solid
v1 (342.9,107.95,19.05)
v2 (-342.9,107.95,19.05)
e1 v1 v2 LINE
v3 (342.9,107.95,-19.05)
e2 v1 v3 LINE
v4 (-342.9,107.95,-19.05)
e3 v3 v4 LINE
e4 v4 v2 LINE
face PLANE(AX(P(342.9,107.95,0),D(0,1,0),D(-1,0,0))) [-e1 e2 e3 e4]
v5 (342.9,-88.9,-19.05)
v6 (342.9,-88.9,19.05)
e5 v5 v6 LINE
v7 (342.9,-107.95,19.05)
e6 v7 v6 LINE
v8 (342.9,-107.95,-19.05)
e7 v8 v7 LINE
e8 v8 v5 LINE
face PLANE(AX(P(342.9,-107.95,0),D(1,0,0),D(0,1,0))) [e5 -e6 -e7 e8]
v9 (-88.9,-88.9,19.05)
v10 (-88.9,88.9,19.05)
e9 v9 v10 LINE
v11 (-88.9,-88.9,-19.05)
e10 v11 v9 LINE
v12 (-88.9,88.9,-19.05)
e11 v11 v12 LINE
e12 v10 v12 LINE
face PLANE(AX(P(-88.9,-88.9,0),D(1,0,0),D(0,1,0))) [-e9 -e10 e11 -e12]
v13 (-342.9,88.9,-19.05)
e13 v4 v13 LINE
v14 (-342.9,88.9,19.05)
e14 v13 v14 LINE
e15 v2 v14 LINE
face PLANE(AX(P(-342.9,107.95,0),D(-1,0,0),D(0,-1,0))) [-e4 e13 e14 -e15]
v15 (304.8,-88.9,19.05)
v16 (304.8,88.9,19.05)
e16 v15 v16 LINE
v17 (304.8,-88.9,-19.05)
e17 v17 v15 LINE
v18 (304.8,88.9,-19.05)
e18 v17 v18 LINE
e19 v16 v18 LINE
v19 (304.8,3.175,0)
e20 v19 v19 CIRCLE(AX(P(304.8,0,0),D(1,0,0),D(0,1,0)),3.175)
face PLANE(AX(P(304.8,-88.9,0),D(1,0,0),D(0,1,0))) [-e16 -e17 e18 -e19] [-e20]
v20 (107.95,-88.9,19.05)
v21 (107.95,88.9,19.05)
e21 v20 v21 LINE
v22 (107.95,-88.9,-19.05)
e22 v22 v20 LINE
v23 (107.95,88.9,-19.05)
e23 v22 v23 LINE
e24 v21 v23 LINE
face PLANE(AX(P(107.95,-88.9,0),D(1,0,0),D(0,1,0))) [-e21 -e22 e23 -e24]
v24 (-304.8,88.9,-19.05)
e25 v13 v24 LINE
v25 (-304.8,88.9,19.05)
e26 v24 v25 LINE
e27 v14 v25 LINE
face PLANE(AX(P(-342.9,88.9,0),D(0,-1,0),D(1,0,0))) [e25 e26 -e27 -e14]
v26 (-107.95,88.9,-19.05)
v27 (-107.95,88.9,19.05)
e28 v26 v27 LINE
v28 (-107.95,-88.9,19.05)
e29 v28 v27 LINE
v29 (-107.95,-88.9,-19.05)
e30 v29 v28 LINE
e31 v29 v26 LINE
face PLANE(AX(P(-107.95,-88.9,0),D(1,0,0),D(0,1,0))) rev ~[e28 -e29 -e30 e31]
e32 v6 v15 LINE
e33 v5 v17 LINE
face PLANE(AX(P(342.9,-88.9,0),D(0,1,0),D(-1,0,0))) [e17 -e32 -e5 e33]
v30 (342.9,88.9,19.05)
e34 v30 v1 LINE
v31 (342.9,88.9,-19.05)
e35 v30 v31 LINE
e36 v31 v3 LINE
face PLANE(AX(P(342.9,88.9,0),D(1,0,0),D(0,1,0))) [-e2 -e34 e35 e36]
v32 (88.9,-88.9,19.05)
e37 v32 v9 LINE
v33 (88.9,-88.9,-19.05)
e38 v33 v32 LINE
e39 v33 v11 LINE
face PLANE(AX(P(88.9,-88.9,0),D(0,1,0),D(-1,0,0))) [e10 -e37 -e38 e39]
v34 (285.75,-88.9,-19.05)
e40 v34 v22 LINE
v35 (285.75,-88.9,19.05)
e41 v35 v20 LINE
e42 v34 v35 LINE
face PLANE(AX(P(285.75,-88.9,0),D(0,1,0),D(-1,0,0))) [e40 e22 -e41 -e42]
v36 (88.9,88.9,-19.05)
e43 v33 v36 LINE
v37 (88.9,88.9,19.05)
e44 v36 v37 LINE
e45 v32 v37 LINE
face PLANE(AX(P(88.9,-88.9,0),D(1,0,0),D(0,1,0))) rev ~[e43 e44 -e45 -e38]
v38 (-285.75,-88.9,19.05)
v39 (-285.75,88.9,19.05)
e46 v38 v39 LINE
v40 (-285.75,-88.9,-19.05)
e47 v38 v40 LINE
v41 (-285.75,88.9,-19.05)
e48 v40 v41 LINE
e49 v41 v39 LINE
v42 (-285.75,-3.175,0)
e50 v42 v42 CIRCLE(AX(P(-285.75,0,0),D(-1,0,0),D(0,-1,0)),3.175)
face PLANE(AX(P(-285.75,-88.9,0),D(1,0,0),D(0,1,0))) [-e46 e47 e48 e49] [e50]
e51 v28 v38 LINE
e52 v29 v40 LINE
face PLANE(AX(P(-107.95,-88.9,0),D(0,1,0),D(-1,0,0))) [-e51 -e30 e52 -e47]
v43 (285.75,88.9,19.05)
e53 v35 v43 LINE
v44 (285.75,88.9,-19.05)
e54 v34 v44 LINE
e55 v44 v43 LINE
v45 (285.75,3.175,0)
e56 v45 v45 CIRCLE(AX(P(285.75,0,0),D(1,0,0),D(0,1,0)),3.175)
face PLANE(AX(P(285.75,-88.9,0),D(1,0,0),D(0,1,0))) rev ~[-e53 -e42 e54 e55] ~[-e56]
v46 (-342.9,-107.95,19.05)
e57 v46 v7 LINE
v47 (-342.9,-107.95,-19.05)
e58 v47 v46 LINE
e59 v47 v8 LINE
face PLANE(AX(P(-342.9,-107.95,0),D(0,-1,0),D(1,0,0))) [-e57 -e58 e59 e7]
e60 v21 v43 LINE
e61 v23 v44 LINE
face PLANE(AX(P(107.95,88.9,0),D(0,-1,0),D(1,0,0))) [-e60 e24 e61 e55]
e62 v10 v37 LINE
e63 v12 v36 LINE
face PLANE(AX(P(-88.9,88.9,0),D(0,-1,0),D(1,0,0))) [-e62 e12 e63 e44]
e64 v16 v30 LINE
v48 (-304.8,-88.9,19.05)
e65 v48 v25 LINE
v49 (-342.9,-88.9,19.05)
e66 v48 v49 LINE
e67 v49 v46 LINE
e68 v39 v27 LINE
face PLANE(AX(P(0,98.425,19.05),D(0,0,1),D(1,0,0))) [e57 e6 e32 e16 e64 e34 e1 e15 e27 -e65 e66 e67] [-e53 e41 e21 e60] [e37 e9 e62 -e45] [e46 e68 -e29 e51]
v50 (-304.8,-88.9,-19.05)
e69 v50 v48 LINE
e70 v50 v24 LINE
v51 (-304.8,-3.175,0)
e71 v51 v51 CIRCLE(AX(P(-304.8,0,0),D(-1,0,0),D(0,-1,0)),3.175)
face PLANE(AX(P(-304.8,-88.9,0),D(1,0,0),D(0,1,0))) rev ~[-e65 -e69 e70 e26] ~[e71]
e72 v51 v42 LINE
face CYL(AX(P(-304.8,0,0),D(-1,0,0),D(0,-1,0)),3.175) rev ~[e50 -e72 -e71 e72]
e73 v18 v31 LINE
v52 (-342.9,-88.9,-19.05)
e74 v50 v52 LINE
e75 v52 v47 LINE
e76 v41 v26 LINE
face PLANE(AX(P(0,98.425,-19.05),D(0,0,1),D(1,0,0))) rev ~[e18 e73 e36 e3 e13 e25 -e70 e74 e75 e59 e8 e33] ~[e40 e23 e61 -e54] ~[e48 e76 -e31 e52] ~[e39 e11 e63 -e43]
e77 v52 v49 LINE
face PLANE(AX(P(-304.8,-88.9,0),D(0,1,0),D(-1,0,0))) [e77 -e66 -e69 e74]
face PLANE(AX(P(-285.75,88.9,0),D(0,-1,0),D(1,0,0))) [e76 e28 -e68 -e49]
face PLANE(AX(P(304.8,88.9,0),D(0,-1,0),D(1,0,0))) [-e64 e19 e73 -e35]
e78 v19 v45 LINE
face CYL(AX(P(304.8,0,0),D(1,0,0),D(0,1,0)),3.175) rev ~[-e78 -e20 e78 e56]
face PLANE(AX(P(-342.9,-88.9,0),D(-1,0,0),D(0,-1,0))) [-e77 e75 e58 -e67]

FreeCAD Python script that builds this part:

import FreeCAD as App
import Part
import Sketcher
from FreeCAD import Vector
Q = App.Units.Quantity


def add_polygon(sketch, points):
    """Adds a closed chain of lines whose ends are joined by coincident constraints."""
    first, n = sketch.GeometryCount, len(points)
    for a, b in zip(points, points[1:] + points[:1]):
        sketch.addGeometry(Part.LineSegment(App.Vector(*a, 0), App.Vector(*b, 0)), False)
    for i in range(n):
        sketch.addConstraint(Sketcher.Constraint("Coincident", first + i, 2, first + (i + 1) % n, 1))

doc = App.newDocument("Part")
body = doc.addObject("PartDesign::Body", "Body")

# Sketch on XY plane
sketch1 = body.newObject("Sketcher::SketchObject", "Sketch")
sketch1.AttachmentSupport = (doc.getObject("XY_Plane"), [""])
sketch1.MapMode = "FlatFace"
add_polygon(sketch1, [(343, 108), (-343, 108), (-343, 89), (-305, 89), (-305, -89), (-343, -89), (-343, -108), (343, -108), (343, -89), (305, -89), (305, 89), (343, 89)])  # lines 0-11
add_polygon(sketch1, [(-286, -89), (-286, 89), (-108, 89), (-108, -89)])  # lines 12-15
add_polygon(sketch1, [(-89, 89), (89, 89), (89, -89), (-89, -89)])  # lines 16-19
add_polygon(sketch1, [(108, 89), (286, 89), (286, -89), (108, -89)])  # lines 20-23
sketch1.addConstraint(Sketcher.Constraint("Horizontal", 0))
sketch1.addConstraint(Sketcher.Constraint("Vertical", 1))
sketch1.addConstraint(Sketcher.Constraint("Horizontal", 2))
sketch1.addConstraint(Sketcher.Constraint("Vertical", 3))
sketch1.addConstraint(Sketcher.Constraint("Horizontal", 4))
sketch1.addConstraint(Sketcher.Constraint("Vertical", 5))
sketch1.addConstraint(Sketcher.Constraint("Horizontal", 6))
sketch1.addConstraint(Sketcher.Constraint("Vertical", 7))
sketch1.addConstraint(Sketcher.Constraint("Horizontal", 8))
sketch1.addConstraint(Sketcher.Constraint("Vertical", 9))
sketch1.addConstraint(Sketcher.Constraint("Horizontal", 10))
sketch1.addConstraint(Sketcher.Constraint("Vertical", 11))
sketch1.addConstraint(Sketcher.Constraint("Vertical", 12))
sketch1.addConstraint(Sketcher.Constraint("Horizontal", 13))
sketch1.addConstraint(Sketcher.Constraint("Vertical", 14))
sketch1.addConstraint(Sketcher.Constraint("Horizontal", 15))
sketch1.addConstraint(Sketcher.Constraint("Horizontal", 16))
sketch1.addConstraint(Sketcher.Constraint("Vertical", 17))
sketch1.addConstraint(Sketcher.Constraint("Horizontal", 18))
sketch1.addConstraint(Sketcher.Constraint("Vertical", 19))
sketch1.addConstraint(Sketcher.Constraint("Horizontal", 20))
sketch1.addConstraint(Sketcher.Constraint("Vertical", 21))
sketch1.addConstraint(Sketcher.Constraint("Horizontal", 22))
sketch1.addConstraint(Sketcher.Constraint("Vertical", 23))
sketch1.addConstraint(Sketcher.Constraint("Symmetric", 0, 2, 6, 2, -1, 1))
sketch1.addConstraint(Sketcher.Constraint("Symmetric", 2, 2, 8, 2, -1, 1))
sketch1.addConstraint(Sketcher.Constraint("Symmetric", 4, 2, 10, 2, -1, 1))
sketch1.addConstraint(Sketcher.Constraint("Symmetric", 16, 2, 18, 2, -1, 1))
sketch1.addConstraint(Sketcher.Constraint("Symmetric", 15, 2, 20, 2, -1, 1))
sketch1.addConstraint(Sketcher.Constraint("Symmetric", 13, 2, 22, 2, -1, 1))
sketch1.addConstraint(Sketcher.Constraint("Symmetric", 4, 2, 7, 2, -2))
sketch1.addConstraint(Sketcher.Constraint("Horizontal", 10, 2, 12, 2))
sketch1.addConstraint(Sketcher.Constraint("Horizontal", 8, 2, 14, 2))
sketch1.addConstraint(Sketcher.Constraint("Horizontal", 13, 2, 16, 2))
sketch1.addConstraint(Sketcher.Constraint("Equal", 15, 16))
sketch1.addConstraint(Sketcher.Constraint("Equal", 22, 3))
sketch1.addConstraint(Sketcher.Constraint("DistanceX", 0, 2, 0, 1, Q("27 in")))
sketch1.addConstraint(Sketcher.Constraint("DistanceX", 13, 1, 13, 2, Q("7 in")))
sketch1.addConstraint(Sketcher.Constraint("DistanceX", 2, 1, 2, 2, Q("1.5 in")))
sketch1.addConstraint(Sketcher.Constraint("DistanceY", 1, 2, 1, 1, Q("0.75 in")))
sketch1.addConstraint(Sketcher.Constraint("DistanceX", 12, 2, -1, 1, Q("11.25 in")))
pad1 = body.newObject("PartDesign::Pad", "Pad")
pad1.Profile = sketch1
pad1.Length = Q("1.5 in")
pad1.Midplane = True

# Sketch on YZ plane
sketch2 = body.newObject("Sketcher::SketchObject", "Sketch001")
sketch2.AttachmentSupport = (doc.getObject("YZ_Plane"), [""])
sketch2.MapMode = "FlatFace"
sketch2.AttachmentOffset = App.Placement(Vector(0, 0, -12 * 25.4), App.Rotation())
sketch2.addGeometry(Part.Circle(Vector(0, 0, 0), Vector(0, 0, 1), 3.2), False)
sketch2.addConstraint(Sketcher.Constraint("Coincident", 0, 3, -1, 1))
sketch2.addConstraint(Sketcher.Constraint("Diameter", 0, Q("0.25 in")))
pocket1 = body.newObject("PartDesign::Pocket", "Pocket")
pocket1.Profile = sketch2
pocket1.Length = Q("1 in")
pocket1.Reversed = True

# Sketch on YZ plane
sketch3 = body.newObject("Sketcher::SketchObject", "Sketch002")
sketch3.AttachmentSupport = (doc.getObject("YZ_Plane"), [""])
sketch3.MapMode = "FlatFace"
sketch3.AttachmentOffset = App.Placement(Vector(0, 0, 12 * 25.4), App.Rotation())
sketch3.addGeometry(Part.Circle(Vector(0, 0, 0), Vector(0, 0, 1), 3.2), False)
sketch3.addConstraint(Sketcher.Constraint("Coincident", 0, 3, -1, 1))
sketch3.addConstraint(Sketcher.Constraint("Diameter", 0, Q("0.25 in")))
pocket2 = body.newObject("PartDesign::Pocket", "Pocket001")
pocket2.Profile = sketch3
pocket2.Length = Q("1 in")

doc.recompute()
